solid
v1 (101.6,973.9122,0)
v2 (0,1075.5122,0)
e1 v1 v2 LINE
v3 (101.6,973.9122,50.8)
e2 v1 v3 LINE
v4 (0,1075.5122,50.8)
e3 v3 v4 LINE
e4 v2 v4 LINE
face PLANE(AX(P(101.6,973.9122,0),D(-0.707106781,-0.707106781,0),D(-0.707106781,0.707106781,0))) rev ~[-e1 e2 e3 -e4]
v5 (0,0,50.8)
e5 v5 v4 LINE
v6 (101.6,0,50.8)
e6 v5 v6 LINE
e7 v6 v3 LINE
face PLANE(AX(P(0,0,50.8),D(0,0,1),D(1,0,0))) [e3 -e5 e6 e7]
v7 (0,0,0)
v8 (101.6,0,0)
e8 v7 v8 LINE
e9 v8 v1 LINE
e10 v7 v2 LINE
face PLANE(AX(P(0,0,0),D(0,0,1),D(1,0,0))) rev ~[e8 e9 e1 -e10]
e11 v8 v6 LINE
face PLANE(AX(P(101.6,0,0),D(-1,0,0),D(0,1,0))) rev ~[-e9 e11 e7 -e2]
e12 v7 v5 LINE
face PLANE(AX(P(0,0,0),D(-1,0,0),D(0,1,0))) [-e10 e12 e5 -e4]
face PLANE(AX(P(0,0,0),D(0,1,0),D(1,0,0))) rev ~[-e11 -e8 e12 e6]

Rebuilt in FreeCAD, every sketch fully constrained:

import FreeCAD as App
import Part
import Sketcher
from FreeCAD import Vector
Q = App.Units.Quantity

doc = App.newDocument("Part")
body = doc.addObject("PartDesign::Body", "Body")

sketch1 = doc.addObject("Sketcher::SketchObject", "Sketch")
body.addObject(sketch1)
sketch1.AttachmentSupport = (doc.XY_Plane, [""])
sketch1.MapMode = "FlatFace"
sketch1.addGeometry([
    Part.LineSegment(Vector(0, 1075.5122, 0), Vector(0, 0, 0)),
    Part.LineSegment(Vector(0, 0, 0), Vector(101.6, 0, 0)),
    Part.LineSegment(Vector(101.6, 0, 0), Vector(101.6, 973.9122, 0)),
    Part.LineSegment(Vector(101.6, 973.9122, 0), Vector(0, 1075.5122, 0)),
], False)
sketch1.addConstraint([
    Sketcher.Constraint("Coincident", 0, 2, 1, 1),
    Sketcher.Constraint("Coincident", 1, 2, 2, 1),
    Sketcher.Constraint("Coincident", 2, 2, 3, 1),
    Sketcher.Constraint("Coincident", 3, 2, 0, 1),
    Sketcher.Constraint("Vertical", 0),
    Sketcher.Constraint("Horizontal", 1),
    Sketcher.Constraint("Vertical", 2),
    Sketcher.Constraint("Coincident", 0, 2, -1, 1),
    Sketcher.Constraint("DistanceX", 1, 1, 1, 2, Q("4 in")),
    Sketcher.Constraint("DistanceY", 2, 2, 3, 2, Q("4 in")),
    Sketcher.Constraint("DistanceY", 0, 2, 0, 1, Q("42.343 in")),
])
pad1 = doc.addObject("PartDesign::Pad", "Pad")
body.addObject(pad1)
pad1.Profile = sketch1
pad1.Length = Q("2 in")

doc.recompute()
